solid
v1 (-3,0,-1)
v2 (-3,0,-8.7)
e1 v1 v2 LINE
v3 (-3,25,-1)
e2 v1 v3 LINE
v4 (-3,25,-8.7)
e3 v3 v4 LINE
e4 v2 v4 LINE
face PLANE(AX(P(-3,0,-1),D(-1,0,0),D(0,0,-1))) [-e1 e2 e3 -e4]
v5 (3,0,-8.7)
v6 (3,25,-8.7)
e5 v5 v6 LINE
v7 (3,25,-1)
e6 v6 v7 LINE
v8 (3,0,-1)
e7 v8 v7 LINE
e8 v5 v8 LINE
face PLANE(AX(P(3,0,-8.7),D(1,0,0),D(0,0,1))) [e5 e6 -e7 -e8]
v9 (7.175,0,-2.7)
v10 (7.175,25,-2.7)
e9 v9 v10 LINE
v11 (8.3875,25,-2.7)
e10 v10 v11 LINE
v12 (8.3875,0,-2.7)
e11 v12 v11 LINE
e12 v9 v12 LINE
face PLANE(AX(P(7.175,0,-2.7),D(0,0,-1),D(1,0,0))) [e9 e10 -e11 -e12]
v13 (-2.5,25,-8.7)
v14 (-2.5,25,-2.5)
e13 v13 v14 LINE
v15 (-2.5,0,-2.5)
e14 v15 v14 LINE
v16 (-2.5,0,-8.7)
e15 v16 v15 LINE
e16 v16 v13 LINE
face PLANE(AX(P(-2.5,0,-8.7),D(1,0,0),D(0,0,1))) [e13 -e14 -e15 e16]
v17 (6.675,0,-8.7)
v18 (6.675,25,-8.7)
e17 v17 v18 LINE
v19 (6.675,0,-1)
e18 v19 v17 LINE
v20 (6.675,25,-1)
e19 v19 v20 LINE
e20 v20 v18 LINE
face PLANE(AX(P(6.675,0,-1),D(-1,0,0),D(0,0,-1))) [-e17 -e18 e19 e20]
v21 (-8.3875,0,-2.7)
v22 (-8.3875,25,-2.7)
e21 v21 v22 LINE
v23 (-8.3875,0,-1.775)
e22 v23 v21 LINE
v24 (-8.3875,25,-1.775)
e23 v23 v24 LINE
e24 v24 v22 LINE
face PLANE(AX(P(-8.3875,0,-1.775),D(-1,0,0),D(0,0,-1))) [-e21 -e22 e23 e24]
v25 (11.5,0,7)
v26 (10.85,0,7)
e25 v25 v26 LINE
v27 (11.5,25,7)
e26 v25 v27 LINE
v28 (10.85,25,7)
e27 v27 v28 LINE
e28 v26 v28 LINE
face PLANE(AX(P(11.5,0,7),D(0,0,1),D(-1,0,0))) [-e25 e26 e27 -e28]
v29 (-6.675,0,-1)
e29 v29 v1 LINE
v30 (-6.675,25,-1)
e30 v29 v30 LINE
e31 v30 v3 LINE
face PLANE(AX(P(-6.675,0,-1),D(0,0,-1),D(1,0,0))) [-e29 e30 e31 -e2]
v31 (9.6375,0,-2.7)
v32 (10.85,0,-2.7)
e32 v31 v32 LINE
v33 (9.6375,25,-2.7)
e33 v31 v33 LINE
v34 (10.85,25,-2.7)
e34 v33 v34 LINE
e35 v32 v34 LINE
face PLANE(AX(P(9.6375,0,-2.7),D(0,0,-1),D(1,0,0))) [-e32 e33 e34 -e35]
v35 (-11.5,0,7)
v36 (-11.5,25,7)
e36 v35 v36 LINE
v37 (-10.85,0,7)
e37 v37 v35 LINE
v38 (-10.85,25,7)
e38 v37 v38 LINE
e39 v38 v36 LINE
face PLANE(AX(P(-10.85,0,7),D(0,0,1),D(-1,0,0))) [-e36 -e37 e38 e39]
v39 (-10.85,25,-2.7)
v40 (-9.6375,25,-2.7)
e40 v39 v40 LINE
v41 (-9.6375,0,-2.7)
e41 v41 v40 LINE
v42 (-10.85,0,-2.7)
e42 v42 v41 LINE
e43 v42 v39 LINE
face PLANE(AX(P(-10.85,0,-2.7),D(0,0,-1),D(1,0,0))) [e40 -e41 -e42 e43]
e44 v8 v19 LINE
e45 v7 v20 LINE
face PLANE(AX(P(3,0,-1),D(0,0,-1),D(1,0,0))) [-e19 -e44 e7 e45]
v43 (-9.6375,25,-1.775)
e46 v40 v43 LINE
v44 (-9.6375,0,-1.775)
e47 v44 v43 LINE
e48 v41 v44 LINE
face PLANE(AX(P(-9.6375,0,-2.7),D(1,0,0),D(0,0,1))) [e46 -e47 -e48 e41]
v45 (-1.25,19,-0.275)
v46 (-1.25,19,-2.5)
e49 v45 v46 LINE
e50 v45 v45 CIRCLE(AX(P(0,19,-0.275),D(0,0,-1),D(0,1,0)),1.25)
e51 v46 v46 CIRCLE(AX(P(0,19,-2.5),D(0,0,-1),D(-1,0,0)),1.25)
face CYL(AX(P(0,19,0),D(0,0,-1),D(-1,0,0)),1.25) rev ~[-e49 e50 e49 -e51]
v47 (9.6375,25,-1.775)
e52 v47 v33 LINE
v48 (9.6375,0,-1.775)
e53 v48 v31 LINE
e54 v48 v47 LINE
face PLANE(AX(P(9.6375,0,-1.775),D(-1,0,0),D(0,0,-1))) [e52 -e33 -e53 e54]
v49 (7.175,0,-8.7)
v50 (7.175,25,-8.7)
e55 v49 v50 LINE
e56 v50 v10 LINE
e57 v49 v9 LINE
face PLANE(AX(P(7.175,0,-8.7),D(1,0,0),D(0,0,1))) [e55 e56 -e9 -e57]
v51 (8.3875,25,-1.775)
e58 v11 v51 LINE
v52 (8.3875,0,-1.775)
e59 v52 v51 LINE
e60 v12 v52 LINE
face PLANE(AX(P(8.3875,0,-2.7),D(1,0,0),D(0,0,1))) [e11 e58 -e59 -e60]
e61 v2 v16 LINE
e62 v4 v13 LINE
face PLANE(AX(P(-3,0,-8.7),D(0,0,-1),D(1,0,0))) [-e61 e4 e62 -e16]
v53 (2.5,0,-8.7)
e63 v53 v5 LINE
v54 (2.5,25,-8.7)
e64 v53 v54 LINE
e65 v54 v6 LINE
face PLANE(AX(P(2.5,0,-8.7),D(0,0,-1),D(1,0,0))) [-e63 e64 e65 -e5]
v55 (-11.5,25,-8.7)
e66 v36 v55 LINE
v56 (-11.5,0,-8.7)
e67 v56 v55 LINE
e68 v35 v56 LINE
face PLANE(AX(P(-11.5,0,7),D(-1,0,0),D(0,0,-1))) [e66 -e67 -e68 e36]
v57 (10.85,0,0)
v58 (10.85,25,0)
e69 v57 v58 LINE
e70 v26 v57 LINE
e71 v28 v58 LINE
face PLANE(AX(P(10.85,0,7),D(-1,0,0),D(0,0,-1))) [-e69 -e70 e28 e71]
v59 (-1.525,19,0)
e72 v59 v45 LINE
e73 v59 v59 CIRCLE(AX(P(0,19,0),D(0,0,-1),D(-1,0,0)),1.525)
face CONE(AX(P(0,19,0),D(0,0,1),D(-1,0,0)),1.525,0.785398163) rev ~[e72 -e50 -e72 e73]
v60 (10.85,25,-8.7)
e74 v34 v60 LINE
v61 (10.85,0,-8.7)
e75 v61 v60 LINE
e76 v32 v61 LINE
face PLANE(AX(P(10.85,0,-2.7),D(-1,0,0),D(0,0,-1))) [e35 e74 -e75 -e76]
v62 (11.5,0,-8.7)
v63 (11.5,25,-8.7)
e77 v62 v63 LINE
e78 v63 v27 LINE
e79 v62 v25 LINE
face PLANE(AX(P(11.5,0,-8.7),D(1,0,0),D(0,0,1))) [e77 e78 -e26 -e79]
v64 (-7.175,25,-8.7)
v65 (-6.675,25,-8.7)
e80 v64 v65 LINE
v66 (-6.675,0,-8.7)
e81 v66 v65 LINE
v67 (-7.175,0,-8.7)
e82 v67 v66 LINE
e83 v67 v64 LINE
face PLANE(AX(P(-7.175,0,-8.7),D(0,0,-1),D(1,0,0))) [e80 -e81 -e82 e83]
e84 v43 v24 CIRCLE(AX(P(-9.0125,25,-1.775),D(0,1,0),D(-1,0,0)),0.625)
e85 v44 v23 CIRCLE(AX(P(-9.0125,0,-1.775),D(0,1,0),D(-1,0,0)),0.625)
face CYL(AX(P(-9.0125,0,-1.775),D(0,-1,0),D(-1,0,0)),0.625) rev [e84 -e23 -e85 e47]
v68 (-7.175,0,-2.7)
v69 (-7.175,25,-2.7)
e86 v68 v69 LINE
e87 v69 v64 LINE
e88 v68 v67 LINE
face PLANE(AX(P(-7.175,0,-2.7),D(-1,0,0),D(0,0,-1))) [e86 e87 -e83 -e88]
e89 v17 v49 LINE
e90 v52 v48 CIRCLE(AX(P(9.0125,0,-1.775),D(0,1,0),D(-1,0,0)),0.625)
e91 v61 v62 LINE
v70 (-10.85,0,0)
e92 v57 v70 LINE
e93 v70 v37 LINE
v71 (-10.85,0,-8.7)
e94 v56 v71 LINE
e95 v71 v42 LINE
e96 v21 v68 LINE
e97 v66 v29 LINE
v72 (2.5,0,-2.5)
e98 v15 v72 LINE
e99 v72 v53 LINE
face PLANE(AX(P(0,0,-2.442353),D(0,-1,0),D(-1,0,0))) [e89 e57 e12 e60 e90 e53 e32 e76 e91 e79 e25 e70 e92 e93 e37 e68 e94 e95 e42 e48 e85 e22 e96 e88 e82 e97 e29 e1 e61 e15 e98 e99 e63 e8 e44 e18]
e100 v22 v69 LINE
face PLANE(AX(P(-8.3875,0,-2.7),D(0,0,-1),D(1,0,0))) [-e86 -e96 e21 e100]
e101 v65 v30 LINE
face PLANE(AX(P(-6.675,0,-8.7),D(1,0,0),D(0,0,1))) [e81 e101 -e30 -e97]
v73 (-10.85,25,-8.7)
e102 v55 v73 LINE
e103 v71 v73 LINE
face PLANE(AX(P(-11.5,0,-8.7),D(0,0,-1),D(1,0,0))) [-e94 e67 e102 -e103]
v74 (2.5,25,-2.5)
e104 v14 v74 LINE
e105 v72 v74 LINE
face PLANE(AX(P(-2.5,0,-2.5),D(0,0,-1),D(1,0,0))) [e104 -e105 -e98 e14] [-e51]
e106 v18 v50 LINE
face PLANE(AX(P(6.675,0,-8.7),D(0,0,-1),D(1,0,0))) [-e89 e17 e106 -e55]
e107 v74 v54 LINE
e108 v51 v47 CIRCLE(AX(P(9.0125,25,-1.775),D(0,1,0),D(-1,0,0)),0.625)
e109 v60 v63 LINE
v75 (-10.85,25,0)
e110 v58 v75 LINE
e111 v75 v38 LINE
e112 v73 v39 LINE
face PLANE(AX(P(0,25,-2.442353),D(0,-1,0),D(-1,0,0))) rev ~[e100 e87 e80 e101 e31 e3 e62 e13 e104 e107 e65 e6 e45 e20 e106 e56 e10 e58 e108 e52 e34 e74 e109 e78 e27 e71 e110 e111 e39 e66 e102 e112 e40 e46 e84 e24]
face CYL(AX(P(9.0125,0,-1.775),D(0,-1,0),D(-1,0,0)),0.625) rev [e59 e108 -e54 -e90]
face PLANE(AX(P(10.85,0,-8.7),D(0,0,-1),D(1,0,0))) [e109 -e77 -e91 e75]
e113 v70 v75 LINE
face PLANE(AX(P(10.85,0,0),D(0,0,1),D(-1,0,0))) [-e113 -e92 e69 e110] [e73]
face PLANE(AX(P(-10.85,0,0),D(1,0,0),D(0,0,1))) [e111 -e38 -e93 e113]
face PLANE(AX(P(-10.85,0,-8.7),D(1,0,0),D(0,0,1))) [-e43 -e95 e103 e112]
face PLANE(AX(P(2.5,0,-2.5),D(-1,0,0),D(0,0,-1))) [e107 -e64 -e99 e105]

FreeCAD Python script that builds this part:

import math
import FreeCAD as App
import Part
import Sketcher

doc = App.newDocument("Part")
body = doc.addObject("PartDesign::Body", "Body")

sketch1 = body.newObject("Sketcher::SketchObject", "Sketch")
sketch1.AttachmentSupport = (doc.getObject("XZ_Plane"), [""])
sketch1.MapMode = "FlatFace"
sketch1.addGeometry([
    Part.LineSegment(App.Vector(-10.8, -8.7, 0), App.Vector(-11.5, -8.7, 0)),
    Part.LineSegment(App.Vector(-11.5, -8.7, 0), App.Vector(-11.5, 7, 0)),
    Part.LineSegment(App.Vector(-11.5, 7, 0), App.Vector(-10.8, 7, 0)),
    Part.LineSegment(App.Vector(-10.8, 7, 0), App.Vector(-10.8, 0, 0)),
    Part.LineSegment(App.Vector(-10.8, 0, 0), App.Vector(10.8, 0, 0)),
    Part.LineSegment(App.Vector(10.8, 0, 0), App.Vector(10.8, 7, 0)),
    Part.LineSegment(App.Vector(10.8, 7, 0), App.Vector(11.5, 7, 0)),
    Part.LineSegment(App.Vector(11.5, 7, 0), App.Vector(11.5, -8.7, 0)),
    Part.LineSegment(App.Vector(11.5, -8.7, 0), App.Vector(10.8, -8.7, 0)),
    Part.LineSegment(App.Vector(10.8, -8.7, 0), App.Vector(10.8, -2.7, 0)),
    Part.LineSegment(App.Vector(10.8, -2.7, 0), App.Vector(9.6, -2.7, 0)),
    Part.LineSegment(App.Vector(9.6, -2.7, 0), App.Vector(9.6, -1.8, 0)),
    Part.ArcOfCircle(Part.Circle(App.Vector(9, -1.8, 0), App.Vector(0, 0, 1), 0.6), math.radians(0), math.radians(180)),
    Part.LineSegment(App.Vector(8.4, -1.8, 0), App.Vector(8.4, -2.7, 0)),
    Part.LineSegment(App.Vector(8.4, -2.7, 0), App.Vector(7.2, -2.7, 0)),
    Part.LineSegment(App.Vector(7.2, -2.7, 0), App.Vector(7.2, -8.7, 0)),
    Part.LineSegment(App.Vector(7.2, -8.7, 0), App.Vector(6.7, -8.7, 0)),
    Part.LineSegment(App.Vector(6.7, -8.7, 0), App.Vector(6.7, -1, 0)),
    Part.LineSegment(App.Vector(6.7, -1, 0), App.Vector(3, -1, 0)),
    Part.LineSegment(App.Vector(3, -1, 0), App.Vector(3, -8.7, 0)),
    Part.LineSegment(App.Vector(3, -8.7, 0), App.Vector(2.5, -8.7, 0)),
    Part.LineSegment(App.Vector(2.5, -8.7, 0), App.Vector(2.5, -2.5, 0)),
    Part.LineSegment(App.Vector(2.5, -2.5, 0), App.Vector(-2.5, -2.5, 0)),
    Part.LineSegment(App.Vector(-2.5, -2.5, 0), App.Vector(-2.5, -8.7, 0)),
    Part.LineSegment(App.Vector(-2.5, -8.7, 0), App.Vector(-3, -8.7, 0)),
    Part.LineSegment(App.Vector(-3, -8.7, 0), App.Vector(-3, -1, 0)),
    Part.LineSegment(App.Vector(-3, -1, 0), App.Vector(-6.7, -1, 0)),
    Part.LineSegment(App.Vector(-6.7, -1, 0), App.Vector(-6.7, -8.7, 0)),
    Part.LineSegment(App.Vector(-6.7, -8.7, 0), App.Vector(-7.2, -8.7, 0)),
    Part.LineSegment(App.Vector(-7.2, -8.7, 0), App.Vector(-7.2, -2.7, 0)),
    Part.LineSegment(App.Vector(-7.2, -2.7, 0), App.Vector(-8.4, -2.7, 0)),
    Part.LineSegment(App.Vector(-8.4, -2.7, 0), App.Vector(-8.4, -1.8, 0)),
    Part.ArcOfCircle(Part.Circle(App.Vector(-9, -1.8, 0), App.Vector(0, 0, 1), 0.6), math.radians(0), math.radians(180)),
    Part.LineSegment(App.Vector(-9.6, -1.8, 0), App.Vector(-9.6, -2.7, 0)),
    Part.LineSegment(App.Vector(-9.6, -2.7, 0), App.Vector(-10.8, -2.7, 0)),
    Part.LineSegment(App.Vector(-10.8, -2.7, 0), App.Vector(-10.8, -8.7, 0)),
], False)
sketch1.addConstraint([
    Sketcher.Constraint("Coincident", 0, 2, 1, 1),
    Sketcher.Constraint("Coincident", 1, 2, 2, 1),
    Sketcher.Constraint("Coincident", 2, 2, 3, 1),
    Sketcher.Constraint("Coincident", 3, 2, 4, 1),
    Sketcher.Constraint("Coincident", 4, 2, 5, 1),
    Sketcher.Constraint("Coincident", 5, 2, 6, 1),
    Sketcher.Constraint("Coincident", 6, 2, 7, 1),
    Sketcher.Constraint("Coincident", 7, 2, 8, 1),
    Sketcher.Constraint("Coincident", 8, 2, 9, 1),
    Sketcher.Constraint("Coincident", 9, 2, 10, 1),
    Sketcher.Constraint("Coincident", 10, 2, 11, 1),
    Sketcher.Constraint("Tangent", 11, 2, 12, 1),
    Sketcher.Constraint("Tangent", 12, 2, 13, 1),
    Sketcher.Constraint("Coincident", 13, 2, 14, 1),
    Sketcher.Constraint("Coincident", 14, 2, 15, 1),
    Sketcher.Constraint("Coincident", 15, 2, 16, 1),
    Sketcher.Constraint("Coincident", 16, 2, 17, 1),
    Sketcher.Constraint("Coincident", 17, 2, 18, 1),
    Sketcher.Constraint("Coincident", 18, 2, 19, 1),
    Sketcher.Constraint("Coincident", 19, 2, 20, 1),
    Sketcher.Constraint("Coincident", 20, 2, 21, 1),
    Sketcher.Constraint("Coincident", 21, 2, 22, 1),
    Sketcher.Constraint("Coincident", 22, 2, 23, 1),
    Sketcher.Constraint("Coincident", 23, 2, 24, 1),
    Sketcher.Constraint("Coincident", 24, 2, 25, 1),
    Sketcher.Constraint("Coincident", 25, 2, 26, 1),
    Sketcher.Constraint("Coincident", 26, 2, 27, 1),
    Sketcher.Constraint("Coincident", 27, 2, 28, 1),
    Sketcher.Constraint("Coincident", 28, 2, 29, 1),
    Sketcher.Constraint("Coincident", 29, 2, 30, 1),
    Sketcher.Constraint("Coincident", 30, 2, 31, 1),
    Sketcher.Constraint("Tangent", 31, 2, 32, 1),
    Sketcher.Constraint("Tangent", 32, 2, 33, 1),
    Sketcher.Constraint("Coincident", 33, 2, 34, 1),
    Sketcher.Constraint("Coincident", 34, 2, 35, 1),
    Sketcher.Constraint("Coincident", 35, 2, 0, 1),
    Sketcher.Constraint("Horizontal", 0),
    Sketcher.Constraint("Vertical", 1),
    Sketcher.Constraint("Horizontal", 2),
    Sketcher.Constraint("Vertical", 3),
    Sketcher.Constraint("Horizontal", 4),
    Sketcher.Constraint("Vertical", 5),
    Sketcher.Constraint("Horizontal", 6),
    Sketcher.Constraint("Vertical", 7),
    Sketcher.Constraint("Horizontal", 8),
    Sketcher.Constraint("Vertical", 9),
    Sketcher.Constraint("Horizontal", 10),
    Sketcher.Constraint("Vertical", 11),
    Sketcher.Constraint("Vertical", 13),
    Sketcher.Constraint("Horizontal", 14),
    Sketcher.Constraint("Vertical", 15),
    Sketcher.Constraint("Horizontal", 16),
    Sketcher.Constraint("Vertical", 17),
    Sketcher.Constraint("Horizontal", 18),
    Sketcher.Constraint("Vertical", 19),
    Sketcher.Constraint("Horizontal", 20),
    Sketcher.Constraint("Vertical", 21),
    Sketcher.Constraint("Horizontal", 22),
    Sketcher.Constraint("Vertical", 23),
    Sketcher.Constraint("Horizontal", 24),
    Sketcher.Constraint("Vertical", 25),
    Sketcher.Constraint("Horizontal", 26),
    Sketcher.Constraint("Vertical", 27),
    Sketcher.Constraint("Horizontal", 28),
    Sketcher.Constraint("Vertical", 29),
    Sketcher.Constraint("Horizontal", 30),
    Sketcher.Constraint("Vertical", 31),
    Sketcher.Constraint("Vertical", 33),
    Sketcher.Constraint("Horizontal", 34),
    Sketcher.Constraint("Vertical", 35),
    Sketcher.Constraint("Equal", 12, 32),
    Sketcher.Constraint("Symmetric", 3, 2, 4, 2, -1, 1),
    Sketcher.Constraint("Symmetric", 12, 3, 32, 3, -2),
    Sketcher.Constraint("Symmetric", 1, 2, 6, 2, -2),
    Sketcher.Constraint("Symmetric", 20, 2, 23, 2, -2),
    Sketcher.Constraint("Symmetric", 18, 2, 25, 2, -2),
    Sketcher.Constraint("Symmetric", 16, 2, 27, 2, -2),
    Sketcher.Constraint("Symmetric", 14, 2, 29, 2, -2),
    Sketcher.Constraint("Symmetric", 9, 2, 34, 2, -2),
    Sketcher.Constraint("Horizontal", 0, 2, 7, 2),
    Sketcher.Constraint("Horizontal", 10, 2, 13, 2),
    Sketcher.Constraint("Horizontal", 8, 2, 15, 2),
    Sketcher.Constraint("Horizontal", 16, 2, 19, 2),
    Sketcher.Constraint("Vertical", 5, 2, 8, 2),
    Sketcher.Constraint("Equal", 10, 14),
    Sketcher.Constraint("Equal", 16, 20),
    Sketcher.Constraint("DistanceX", 22, 2, 22, 1, 5.0),
    Sketcher.Constraint("DistanceY", 3, 2, 3, 1, 7.0),
    Sketcher.Constraint("DistanceY", 9, 1, 9, 2, 6.0),
    Sketcher.Constraint("DistanceX", 4, 1, 4, 2, 21.7),
    Sketcher.Constraint("DistanceX", 16, 2, 16, 1, 0.5),
    Sketcher.Constraint("DistanceY", 1, 1, 1, 2, 15.7),
    Sketcher.Constraint("DistanceY", 17, 1, 17, 2, 7.7),
    Sketcher.Constraint("DistanceY", 21, 1, 21, 2, 6.2),
    Sketcher.Constraint("Radius", 12, 0.625),
    Sketcher.Constraint("DistanceX", 0, 2, 23, 2, 9.0),
    Sketcher.Constraint("DistanceX", 18, 2, 18, 1, 3.675),
    Sketcher.Constraint("DistanceY", 11, 1, 11, 2, 0.925),
])
pad1 = body.newObject("PartDesign::Pad", "Pad")
pad1.Profile = sketch1
pad1.Length = 25
pad1.Reversed = True

sketch2 = body.newObject("Sketcher::SketchObject", "Sketch001")
sketch2.AttachmentSupport = (doc.getObject("XY_Plane"), [""])
sketch2.MapMode = "FlatFace"
sketch2.addGeometry(Part.Circle(App.Vector(0, 19, 0), App.Vector(0, 0, 1), 1.2), False)
sketch2.addConstraint([
    Sketcher.Constraint("PointOnObject", 0, 3, -2),
    Sketcher.Constraint("Diameter", 0, 2.5),
    Sketcher.Constraint("DistanceY", -1, 1, 0, 3, 19.0),
])
doc.recompute()
hole = body.newObject("PartDesign::Hole", "Hole")
hole.Profile = sketch2
hole.ThreadType = "None"
hole.Diameter = 2.5
hole.DepthType = "ThroughAll"
hole.HoleCutType = "Countersink"
hole.HoleCutDiameter = 3.05
hole.HoleCutCountersinkAngle = 90

doc.recompute()
